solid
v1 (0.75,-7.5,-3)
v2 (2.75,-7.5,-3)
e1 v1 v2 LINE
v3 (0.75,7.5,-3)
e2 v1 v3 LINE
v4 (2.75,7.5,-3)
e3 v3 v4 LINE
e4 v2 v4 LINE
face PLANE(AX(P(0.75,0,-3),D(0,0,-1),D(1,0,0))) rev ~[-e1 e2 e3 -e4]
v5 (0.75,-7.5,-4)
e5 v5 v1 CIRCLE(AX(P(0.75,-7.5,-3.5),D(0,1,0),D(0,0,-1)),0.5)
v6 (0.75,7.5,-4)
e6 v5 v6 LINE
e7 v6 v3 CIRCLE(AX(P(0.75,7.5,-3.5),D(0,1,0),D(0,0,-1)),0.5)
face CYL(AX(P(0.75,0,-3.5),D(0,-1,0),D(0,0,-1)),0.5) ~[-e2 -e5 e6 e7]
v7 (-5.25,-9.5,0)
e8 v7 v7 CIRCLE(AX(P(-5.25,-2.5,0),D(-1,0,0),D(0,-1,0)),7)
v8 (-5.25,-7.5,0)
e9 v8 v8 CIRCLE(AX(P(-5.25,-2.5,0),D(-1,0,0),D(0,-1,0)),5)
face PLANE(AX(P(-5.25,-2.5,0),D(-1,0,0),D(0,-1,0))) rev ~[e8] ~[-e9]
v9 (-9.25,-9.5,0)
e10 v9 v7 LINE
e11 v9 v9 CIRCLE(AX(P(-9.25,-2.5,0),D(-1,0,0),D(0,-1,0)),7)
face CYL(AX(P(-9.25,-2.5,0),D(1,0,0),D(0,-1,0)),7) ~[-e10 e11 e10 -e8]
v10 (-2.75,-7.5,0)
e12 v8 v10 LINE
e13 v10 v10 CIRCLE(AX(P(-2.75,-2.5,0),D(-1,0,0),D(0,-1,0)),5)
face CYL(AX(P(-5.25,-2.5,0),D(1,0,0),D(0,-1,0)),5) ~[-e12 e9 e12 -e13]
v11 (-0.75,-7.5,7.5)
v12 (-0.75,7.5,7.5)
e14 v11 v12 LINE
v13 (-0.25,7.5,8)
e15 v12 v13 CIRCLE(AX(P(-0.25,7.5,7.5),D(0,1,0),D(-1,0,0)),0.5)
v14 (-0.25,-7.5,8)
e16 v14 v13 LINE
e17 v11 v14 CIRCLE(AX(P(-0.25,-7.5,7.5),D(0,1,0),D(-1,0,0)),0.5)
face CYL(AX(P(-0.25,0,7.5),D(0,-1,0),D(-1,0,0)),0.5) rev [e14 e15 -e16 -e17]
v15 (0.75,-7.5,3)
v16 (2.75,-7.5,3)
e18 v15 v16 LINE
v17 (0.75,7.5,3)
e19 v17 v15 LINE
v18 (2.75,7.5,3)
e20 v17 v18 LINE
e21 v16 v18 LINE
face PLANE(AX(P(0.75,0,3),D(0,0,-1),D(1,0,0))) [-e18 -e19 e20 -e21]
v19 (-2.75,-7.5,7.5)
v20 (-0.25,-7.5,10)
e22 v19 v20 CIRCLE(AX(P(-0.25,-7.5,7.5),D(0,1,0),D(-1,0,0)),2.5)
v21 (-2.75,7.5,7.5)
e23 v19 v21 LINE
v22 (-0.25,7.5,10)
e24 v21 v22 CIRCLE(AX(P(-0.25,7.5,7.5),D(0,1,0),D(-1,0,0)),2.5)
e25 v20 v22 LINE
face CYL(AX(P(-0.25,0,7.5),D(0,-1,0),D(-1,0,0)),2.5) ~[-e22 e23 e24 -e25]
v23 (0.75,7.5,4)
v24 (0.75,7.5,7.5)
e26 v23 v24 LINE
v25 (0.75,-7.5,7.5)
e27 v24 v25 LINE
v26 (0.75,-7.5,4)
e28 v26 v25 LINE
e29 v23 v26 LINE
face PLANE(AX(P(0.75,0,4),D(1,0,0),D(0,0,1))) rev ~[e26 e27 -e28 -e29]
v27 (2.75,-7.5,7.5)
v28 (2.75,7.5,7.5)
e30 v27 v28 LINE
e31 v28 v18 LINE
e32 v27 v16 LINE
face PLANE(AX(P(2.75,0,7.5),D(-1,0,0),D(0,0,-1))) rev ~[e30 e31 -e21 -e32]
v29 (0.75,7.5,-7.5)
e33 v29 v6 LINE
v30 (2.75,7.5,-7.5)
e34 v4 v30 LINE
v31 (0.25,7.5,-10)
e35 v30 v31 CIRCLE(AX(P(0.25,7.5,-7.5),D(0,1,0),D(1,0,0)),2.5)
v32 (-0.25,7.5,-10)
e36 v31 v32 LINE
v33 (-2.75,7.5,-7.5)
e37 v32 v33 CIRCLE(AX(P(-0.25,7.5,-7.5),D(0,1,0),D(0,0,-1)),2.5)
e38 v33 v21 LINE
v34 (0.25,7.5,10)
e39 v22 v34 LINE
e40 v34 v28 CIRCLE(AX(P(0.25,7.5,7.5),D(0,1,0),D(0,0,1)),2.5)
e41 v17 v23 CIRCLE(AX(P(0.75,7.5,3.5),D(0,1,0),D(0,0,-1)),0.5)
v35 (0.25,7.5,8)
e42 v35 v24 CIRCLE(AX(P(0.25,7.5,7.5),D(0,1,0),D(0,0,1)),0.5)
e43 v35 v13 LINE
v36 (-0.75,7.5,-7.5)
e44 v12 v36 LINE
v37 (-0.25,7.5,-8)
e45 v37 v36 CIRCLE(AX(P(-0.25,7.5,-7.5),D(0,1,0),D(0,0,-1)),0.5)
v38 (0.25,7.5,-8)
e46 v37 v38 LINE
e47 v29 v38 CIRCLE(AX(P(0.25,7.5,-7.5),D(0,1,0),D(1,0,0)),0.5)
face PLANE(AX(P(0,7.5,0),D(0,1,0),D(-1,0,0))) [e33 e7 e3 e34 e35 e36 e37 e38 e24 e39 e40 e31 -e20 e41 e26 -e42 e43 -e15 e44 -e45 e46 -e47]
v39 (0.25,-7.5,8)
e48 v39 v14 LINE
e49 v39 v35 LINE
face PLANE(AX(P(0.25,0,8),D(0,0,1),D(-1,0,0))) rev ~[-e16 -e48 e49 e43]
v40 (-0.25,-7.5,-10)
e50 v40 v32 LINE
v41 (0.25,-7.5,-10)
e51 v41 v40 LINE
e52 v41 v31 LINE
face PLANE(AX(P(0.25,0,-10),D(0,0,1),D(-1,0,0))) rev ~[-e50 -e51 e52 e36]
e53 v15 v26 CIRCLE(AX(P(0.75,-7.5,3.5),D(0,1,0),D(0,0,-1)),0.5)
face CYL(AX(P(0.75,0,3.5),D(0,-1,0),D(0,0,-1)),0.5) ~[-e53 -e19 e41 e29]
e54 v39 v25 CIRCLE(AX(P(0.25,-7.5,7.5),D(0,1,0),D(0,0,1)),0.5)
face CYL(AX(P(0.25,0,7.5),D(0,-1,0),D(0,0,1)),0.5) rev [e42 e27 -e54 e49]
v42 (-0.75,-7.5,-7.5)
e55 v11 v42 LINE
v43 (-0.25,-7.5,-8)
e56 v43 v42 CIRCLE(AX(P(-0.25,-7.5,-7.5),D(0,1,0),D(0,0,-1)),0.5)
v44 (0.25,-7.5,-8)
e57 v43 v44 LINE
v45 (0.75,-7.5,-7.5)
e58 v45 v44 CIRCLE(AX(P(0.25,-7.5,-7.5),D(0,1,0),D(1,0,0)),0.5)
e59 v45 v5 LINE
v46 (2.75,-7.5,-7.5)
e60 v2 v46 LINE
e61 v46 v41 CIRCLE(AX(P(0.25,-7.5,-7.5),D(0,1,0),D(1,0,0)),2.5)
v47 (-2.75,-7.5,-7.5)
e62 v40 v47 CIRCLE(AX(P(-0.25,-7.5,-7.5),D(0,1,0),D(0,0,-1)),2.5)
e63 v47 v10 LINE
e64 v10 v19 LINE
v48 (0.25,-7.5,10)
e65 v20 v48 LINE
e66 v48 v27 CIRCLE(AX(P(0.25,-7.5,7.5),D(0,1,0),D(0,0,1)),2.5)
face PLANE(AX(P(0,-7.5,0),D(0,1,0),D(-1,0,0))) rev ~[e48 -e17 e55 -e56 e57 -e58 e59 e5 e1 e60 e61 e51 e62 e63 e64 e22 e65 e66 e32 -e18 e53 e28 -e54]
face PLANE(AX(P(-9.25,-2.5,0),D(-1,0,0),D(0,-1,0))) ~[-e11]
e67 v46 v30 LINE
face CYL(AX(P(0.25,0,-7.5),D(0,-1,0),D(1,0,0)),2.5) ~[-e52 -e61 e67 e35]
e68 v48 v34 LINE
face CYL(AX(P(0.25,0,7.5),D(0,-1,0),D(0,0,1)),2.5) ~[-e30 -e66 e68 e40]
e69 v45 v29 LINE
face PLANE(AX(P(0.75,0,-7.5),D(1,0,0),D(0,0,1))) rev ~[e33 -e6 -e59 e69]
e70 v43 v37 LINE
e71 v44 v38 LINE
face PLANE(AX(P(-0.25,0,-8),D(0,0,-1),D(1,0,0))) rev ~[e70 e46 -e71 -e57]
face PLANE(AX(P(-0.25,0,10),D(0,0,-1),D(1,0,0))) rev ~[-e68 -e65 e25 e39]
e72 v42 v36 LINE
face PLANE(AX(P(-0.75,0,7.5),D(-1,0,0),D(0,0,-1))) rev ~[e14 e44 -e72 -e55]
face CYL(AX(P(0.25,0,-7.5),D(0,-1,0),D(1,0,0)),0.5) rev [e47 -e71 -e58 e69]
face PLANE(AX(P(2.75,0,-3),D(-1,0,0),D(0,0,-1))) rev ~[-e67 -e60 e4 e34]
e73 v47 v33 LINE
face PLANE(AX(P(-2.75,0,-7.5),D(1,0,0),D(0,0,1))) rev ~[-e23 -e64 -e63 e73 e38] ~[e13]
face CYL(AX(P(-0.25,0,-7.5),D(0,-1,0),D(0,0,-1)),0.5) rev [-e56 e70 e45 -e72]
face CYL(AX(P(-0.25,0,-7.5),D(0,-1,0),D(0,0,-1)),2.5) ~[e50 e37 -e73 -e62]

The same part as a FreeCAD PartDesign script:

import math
import FreeCAD as App
import Part
import Sketcher


def add_polygon(sketch, points):
    """Adds a closed chain of lines whose ends are joined by coincident constraints."""
    first, n = sketch.GeometryCount, len(points)
    for a, b in zip(points, points[1:] + points[:1]):
        sketch.addGeometry(Part.LineSegment(App.Vector(*a, 0), App.Vector(*b, 0)), False)
    for i in range(n):
        sketch.addConstraint(Sketcher.Constraint("Coincident", first + i, 2, first + (i + 1) % n, 1))

doc = App.newDocument("Part")
body = doc.addObject("PartDesign::Body", "Body")

sketch1 = doc.addObject("Sketcher::SketchObject", "Sketch")
body.addObject(sketch1)
sketch1.AttachmentSupport = (doc.XZ_Plane, [""])
sketch1.MapMode = "FlatFace"
sketch1.addGeometry([
    Part.ArcOfCircle(Part.Circle(App.Vector(0.25, 7.5, 0), App.Vector(0, 0, 1), 0.5), math.radians(0), math.radians(90)),
    Part.LineSegment(App.Vector(0.25, 8, 0), App.Vector(-0.25, 8, 0)),
    Part.ArcOfCircle(Part.Circle(App.Vector(-0.25, 7.5, 0), App.Vector(0, 0, 1), 0.5), math.radians(90), math.radians(180)),
    Part.LineSegment(App.Vector(-0.75, 7.5, 0), App.Vector(-0.75, -7.5, 0)),
    Part.ArcOfCircle(Part.Circle(App.Vector(-0.25, -7.5, 0), App.Vector(0, 0, 1), 0.5), math.radians(180), math.radians(270)),
    Part.LineSegment(App.Vector(-0.25, -8, 0), App.Vector(0.25, -8, 0)),
    Part.ArcOfCircle(Part.Circle(App.Vector(0.25, -7.5, 0), App.Vector(0, 0, 1), 0.5), math.radians(-90), math.radians(0)),
    Part.LineSegment(App.Vector(0.75, -7.5, 0), App.Vector(0.75, -4, 0)),
    Part.ArcOfCircle(Part.Circle(App.Vector(0.75, -3.5, 0), App.Vector(0, 0, 1), 0.5), math.radians(90), math.radians(270)),
    Part.LineSegment(App.Vector(0.75, -3, 0), App.Vector(2.75, -3, 0)),
    Part.LineSegment(App.Vector(2.75, -3, 0), App.Vector(2.75, -7.5, 0)),
    Part.ArcOfCircle(Part.Circle(App.Vector(0.25, -7.5, 0), App.Vector(0, 0, 1), 2.5), math.radians(-90), math.radians(0)),
    Part.LineSegment(App.Vector(0.25, -10, 0), App.Vector(-0.25, -10, 0)),
    Part.ArcOfCircle(Part.Circle(App.Vector(-0.25, -7.5, 0), App.Vector(0, 0, 1), 2.5), math.radians(180), math.radians(270)),
    Part.LineSegment(App.Vector(-2.75, -7.5, 0), App.Vector(-2.75, 7.5, 0)),
    Part.ArcOfCircle(Part.Circle(App.Vector(-0.25, 7.5, 0), App.Vector(0, 0, 1), 2.5), math.radians(90), math.radians(180)),
    Part.LineSegment(App.Vector(-0.25, 10, 0), App.Vector(0.25, 10, 0)),
    Part.ArcOfCircle(Part.Circle(App.Vector(0.25, 7.5, 0), App.Vector(0, 0, 1), 2.5), math.radians(0), math.radians(90)),
    Part.LineSegment(App.Vector(2.75, 7.5, 0), App.Vector(2.75, 3, 0)),
    Part.LineSegment(App.Vector(2.75, 3, 0), App.Vector(0.75, 3, 0)),
    Part.ArcOfCircle(Part.Circle(App.Vector(0.75, 3.5, 0), App.Vector(0, 0, 1), 0.5), math.radians(90), math.radians(270)),
    Part.LineSegment(App.Vector(0.75, 4, 0), App.Vector(0.75, 7.5, 0)),
], False)
sketch1.addConstraint([
    Sketcher.Constraint("Tangent", 0, 2, 1, 1),
    Sketcher.Constraint("Tangent", 1, 2, 2, 1),
    Sketcher.Constraint("Tangent", 2, 2, 3, 1),
    Sketcher.Constraint("Tangent", 3, 2, 4, 1),
    Sketcher.Constraint("Tangent", 4, 2, 5, 1),
    Sketcher.Constraint("Tangent", 5, 2, 6, 1),
    Sketcher.Constraint("Tangent", 6, 2, 7, 1),
    Sketcher.Constraint("Coincident", 7, 2, 8, 2),
    Sketcher.Constraint("Tangent", 8, 1, 9, 1),
    Sketcher.Constraint("Coincident", 9, 2, 10, 1),
    Sketcher.Constraint("Tangent", 10, 2, 11, 2),
    Sketcher.Constraint("Tangent", 11, 1, 12, 1),
    Sketcher.Constraint("Tangent", 12, 2, 13, 2),
    Sketcher.Constraint("Tangent", 13, 1, 14, 1),
    Sketcher.Constraint("Tangent", 14, 2, 15, 2),
    Sketcher.Constraint("Tangent", 15, 1, 16, 1),
    Sketcher.Constraint("Tangent", 16, 2, 17, 2),
    Sketcher.Constraint("Tangent", 17, 1, 18, 1),
    Sketcher.Constraint("Coincident", 18, 2, 19, 1),
    Sketcher.Constraint("Tangent", 19, 2, 20, 2),
    Sketcher.Constraint("Coincident", 20, 1, 21, 1),
    Sketcher.Constraint("Tangent", 21, 2, 0, 1),
    Sketcher.Constraint("Horizontal", 1),
    Sketcher.Constraint("Vertical", 3),
    Sketcher.Constraint("Horizontal", 5),
    Sketcher.Constraint("Vertical", 7),
    Sketcher.Constraint("Horizontal", 9),
    Sketcher.Constraint("Vertical", 10),
    Sketcher.Constraint("Horizontal", 12),
    Sketcher.Constraint("Vertical", 14),
    Sketcher.Constraint("Horizontal", 16),
    Sketcher.Constraint("Vertical", 18),
    Sketcher.Constraint("Horizontal", 19),
    Sketcher.Constraint("Vertical", 21),
    Sketcher.Constraint("Coincident", 11, 3, 6, 3),
    Sketcher.Constraint("Coincident", 13, 3, 4, 3),
    Sketcher.Constraint("Coincident", 15, 3, 2, 3),
    Sketcher.Constraint("Coincident", 17, 3, 0, 3),
    Sketcher.Constraint("Equal", 0, 2),
    Sketcher.Constraint("Equal", 2, 4),
    Sketcher.Constraint("Equal", 4, 6),
    Sketcher.Constraint("Equal", 6, 8),
    Sketcher.Constraint("Equal", 8, 20),
    Sketcher.Constraint("Symmetric", 0, 3, 4, 3, -1, 1),
    Sketcher.Constraint("Symmetric", 8, 3, 20, 3, -1),
    Sketcher.Constraint("Vertical", 0, 3, 6, 3),
    Sketcher.Constraint("Vertical", 20, 3, 6, 2),
    Sketcher.Constraint("Radius", 0, 0.5),
    Sketcher.Constraint("DistanceX", 9, 1, 9, 2, 2.0),
    Sketcher.Constraint("DistanceX", 1, 2, 1, 1, 0.5),
    Sketcher.Constraint("DistanceY", 3, 2, 3, 1, 15.0),
    Sketcher.Constraint("DistanceY", 7, 1, 7, 2, 3.5),
])
pad1 = doc.addObject("PartDesign::Pad", "Pad")
body.addObject(pad1)
pad1.Profile = sketch1
pad1.Length = 15
pad1.Midplane = True

sketch2 = doc.addObject("Sketcher::SketchObject", "Sketch001")
body.addObject(sketch2)
sketch2.AttachmentSupport = (doc.XY_Plane, [""])
sketch2.MapMode = "FlatFace"
add_polygon(sketch2, [(-2.75, -7.5), (-2.75, -2.5), (-9.25, -2.5), (-9.25, -9.5), (-5.25, -9.5), (-5.25, -7.5)])
sketch2.addGeometry(Part.LineSegment(App.Vector(-2.75, -2.5, 0), App.Vector(-9.25, -2.5, 0)), True)
sketch2.addConstraint([
    Sketcher.Constraint("Vertical", 0),
    Sketcher.Constraint("Horizontal", 1),
    Sketcher.Constraint("Vertical", 2),
    Sketcher.Constraint("Horizontal", 3),
    Sketcher.Constraint("Vertical", 4),
    Sketcher.Constraint("Horizontal", 5),
    Sketcher.Constraint("Horizontal", 6),
    Sketcher.Constraint("Coincident", 6, 1, 0, 2),
    Sketcher.Constraint("Vertical", 2, 2, 6, 2),
    Sketcher.Constraint("DistanceX", 1, 2, 1, 1, 6.5),
    Sketcher.Constraint("DistanceX", 5, 1, 5, 2, 2.5),
    Sketcher.Constraint("DistanceY", 0, 2, -1, 1, 2.5),
    Sketcher.Constraint("DistanceY", 0, 1, 0, 2, 5.0),
    Sketcher.Constraint("DistanceY", 2, 2, 2, 1, 7.0),
    Sketcher.Constraint("DistanceX", 0, 2, -1, 1, 2.75),
])
revolution = doc.addObject("PartDesign::Revolution", "Revolution")
body.addObject(revolution)
revolution.Profile = sketch2
revolution.ReferenceAxis = (sketch2, ["Axis0"])
revolution.Angle = 360

doc.recompute()
